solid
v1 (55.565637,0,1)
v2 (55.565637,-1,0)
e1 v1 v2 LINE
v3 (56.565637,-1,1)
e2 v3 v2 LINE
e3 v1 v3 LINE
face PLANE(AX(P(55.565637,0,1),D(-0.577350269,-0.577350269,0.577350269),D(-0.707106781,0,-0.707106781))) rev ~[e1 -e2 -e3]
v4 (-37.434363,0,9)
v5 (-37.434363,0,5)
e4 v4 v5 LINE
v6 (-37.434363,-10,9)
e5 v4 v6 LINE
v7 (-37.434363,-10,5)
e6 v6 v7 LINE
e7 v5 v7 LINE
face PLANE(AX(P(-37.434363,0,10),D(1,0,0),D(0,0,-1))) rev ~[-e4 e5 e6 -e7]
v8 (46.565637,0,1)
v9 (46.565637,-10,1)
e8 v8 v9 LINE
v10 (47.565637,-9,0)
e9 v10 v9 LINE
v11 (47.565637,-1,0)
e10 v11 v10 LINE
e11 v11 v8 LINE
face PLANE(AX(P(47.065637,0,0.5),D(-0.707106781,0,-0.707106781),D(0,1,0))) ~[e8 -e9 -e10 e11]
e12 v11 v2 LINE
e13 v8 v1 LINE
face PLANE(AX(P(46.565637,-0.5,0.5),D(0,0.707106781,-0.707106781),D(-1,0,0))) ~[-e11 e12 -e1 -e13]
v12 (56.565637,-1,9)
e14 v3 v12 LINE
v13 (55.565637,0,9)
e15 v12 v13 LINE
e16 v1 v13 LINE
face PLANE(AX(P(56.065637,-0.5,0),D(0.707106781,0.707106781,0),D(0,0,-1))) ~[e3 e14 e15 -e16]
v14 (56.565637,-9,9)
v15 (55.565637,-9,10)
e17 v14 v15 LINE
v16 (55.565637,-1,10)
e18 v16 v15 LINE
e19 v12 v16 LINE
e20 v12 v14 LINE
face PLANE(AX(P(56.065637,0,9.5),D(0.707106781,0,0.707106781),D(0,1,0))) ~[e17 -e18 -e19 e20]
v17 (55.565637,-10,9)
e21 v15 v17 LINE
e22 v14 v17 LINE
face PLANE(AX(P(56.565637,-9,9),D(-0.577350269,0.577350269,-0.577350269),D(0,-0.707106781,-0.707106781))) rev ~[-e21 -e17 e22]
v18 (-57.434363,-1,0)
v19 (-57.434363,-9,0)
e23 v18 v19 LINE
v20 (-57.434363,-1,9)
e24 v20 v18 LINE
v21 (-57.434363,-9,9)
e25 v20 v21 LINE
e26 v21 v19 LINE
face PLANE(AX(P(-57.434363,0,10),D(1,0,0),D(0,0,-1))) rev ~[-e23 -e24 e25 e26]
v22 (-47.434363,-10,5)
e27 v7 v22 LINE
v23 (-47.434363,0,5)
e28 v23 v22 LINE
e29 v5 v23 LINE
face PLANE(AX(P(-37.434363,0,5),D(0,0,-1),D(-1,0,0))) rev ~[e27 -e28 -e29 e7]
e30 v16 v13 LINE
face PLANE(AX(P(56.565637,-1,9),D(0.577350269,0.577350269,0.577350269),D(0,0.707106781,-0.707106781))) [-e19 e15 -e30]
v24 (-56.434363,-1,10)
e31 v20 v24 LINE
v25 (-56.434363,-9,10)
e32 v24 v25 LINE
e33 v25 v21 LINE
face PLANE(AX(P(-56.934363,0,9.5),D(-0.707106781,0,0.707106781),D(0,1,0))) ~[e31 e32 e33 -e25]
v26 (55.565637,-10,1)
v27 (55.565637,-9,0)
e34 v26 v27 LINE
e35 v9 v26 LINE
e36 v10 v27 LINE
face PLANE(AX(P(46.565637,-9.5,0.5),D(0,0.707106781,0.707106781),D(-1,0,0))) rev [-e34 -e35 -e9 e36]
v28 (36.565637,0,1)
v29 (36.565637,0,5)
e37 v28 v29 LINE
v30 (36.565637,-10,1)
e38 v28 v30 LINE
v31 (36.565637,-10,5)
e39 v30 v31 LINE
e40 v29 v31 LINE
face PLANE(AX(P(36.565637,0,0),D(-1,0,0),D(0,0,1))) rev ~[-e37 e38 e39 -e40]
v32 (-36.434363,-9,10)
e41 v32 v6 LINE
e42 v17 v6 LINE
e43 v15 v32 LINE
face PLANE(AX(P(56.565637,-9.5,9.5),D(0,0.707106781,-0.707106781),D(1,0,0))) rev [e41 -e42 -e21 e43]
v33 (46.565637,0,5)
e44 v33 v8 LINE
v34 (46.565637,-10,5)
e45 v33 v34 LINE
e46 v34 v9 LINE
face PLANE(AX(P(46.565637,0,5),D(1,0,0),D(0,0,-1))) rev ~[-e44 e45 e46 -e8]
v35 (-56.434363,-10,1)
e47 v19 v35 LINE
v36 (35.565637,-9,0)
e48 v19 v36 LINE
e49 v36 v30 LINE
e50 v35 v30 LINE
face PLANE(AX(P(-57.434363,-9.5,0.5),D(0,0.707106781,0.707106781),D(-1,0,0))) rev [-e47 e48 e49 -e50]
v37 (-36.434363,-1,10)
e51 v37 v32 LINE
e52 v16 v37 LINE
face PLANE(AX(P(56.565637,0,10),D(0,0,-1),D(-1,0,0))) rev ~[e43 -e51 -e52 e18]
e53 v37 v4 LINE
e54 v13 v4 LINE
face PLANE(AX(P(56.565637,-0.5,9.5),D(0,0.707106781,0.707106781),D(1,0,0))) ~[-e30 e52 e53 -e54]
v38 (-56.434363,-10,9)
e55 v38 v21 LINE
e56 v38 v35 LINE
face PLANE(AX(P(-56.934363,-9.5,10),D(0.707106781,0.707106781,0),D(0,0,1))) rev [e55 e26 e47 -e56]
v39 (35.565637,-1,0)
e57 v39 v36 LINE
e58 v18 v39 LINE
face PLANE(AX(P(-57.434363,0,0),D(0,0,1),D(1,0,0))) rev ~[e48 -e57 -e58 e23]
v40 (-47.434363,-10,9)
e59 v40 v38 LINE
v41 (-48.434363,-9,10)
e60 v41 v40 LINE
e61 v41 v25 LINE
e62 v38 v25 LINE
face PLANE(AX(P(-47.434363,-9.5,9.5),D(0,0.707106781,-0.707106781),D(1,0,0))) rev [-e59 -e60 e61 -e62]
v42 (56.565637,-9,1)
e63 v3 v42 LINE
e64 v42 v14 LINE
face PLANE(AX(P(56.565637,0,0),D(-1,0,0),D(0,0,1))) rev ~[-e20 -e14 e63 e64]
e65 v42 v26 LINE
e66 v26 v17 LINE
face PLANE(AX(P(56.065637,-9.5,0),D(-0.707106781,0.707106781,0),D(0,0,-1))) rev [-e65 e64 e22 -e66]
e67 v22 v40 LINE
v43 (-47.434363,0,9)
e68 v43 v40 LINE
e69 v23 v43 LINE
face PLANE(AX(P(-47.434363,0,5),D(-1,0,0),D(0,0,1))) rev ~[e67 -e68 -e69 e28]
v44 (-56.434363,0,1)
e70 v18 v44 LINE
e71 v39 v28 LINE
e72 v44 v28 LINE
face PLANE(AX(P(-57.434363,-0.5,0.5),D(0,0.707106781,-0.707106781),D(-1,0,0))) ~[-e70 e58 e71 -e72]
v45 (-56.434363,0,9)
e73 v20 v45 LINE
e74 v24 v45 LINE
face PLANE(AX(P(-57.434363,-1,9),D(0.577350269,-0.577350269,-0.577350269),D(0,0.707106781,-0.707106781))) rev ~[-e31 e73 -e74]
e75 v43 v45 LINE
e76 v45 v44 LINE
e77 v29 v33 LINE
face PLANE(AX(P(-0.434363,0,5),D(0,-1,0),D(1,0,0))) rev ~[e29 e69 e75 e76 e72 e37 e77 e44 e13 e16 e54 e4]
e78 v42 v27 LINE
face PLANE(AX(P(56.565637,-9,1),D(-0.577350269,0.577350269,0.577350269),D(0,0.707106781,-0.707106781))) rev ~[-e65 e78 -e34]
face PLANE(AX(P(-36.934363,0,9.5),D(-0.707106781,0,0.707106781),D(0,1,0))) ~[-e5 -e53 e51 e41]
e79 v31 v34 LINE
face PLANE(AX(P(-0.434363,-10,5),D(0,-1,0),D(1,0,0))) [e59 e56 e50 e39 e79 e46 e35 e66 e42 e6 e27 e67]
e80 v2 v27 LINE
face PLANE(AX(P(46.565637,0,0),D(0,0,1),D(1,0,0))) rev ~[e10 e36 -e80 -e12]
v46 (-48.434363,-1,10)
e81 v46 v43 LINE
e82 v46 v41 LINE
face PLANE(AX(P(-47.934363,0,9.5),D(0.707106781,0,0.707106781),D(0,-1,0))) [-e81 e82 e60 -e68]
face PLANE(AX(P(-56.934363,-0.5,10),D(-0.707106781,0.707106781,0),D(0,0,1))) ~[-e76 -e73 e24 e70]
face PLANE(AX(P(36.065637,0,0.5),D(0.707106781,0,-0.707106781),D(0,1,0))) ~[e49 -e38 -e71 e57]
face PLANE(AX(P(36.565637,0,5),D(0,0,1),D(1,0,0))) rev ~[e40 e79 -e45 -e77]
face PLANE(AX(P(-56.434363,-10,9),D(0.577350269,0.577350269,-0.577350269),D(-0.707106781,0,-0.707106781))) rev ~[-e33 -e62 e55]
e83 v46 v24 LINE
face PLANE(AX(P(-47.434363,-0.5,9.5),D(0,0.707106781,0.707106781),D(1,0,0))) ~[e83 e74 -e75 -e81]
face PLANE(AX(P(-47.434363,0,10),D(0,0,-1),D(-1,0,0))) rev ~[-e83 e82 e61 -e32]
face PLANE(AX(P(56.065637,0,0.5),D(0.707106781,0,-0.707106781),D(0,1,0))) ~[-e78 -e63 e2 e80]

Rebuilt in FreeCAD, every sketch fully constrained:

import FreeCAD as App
import Part
import Sketcher
from FreeCAD import Vector


def edges_at(feature, points):
    """Names of the edges that pass closest to the given points."""
    edges = feature.Shape.Edges
    near = lambda p: min(range(len(edges)), key=lambda i: edges[i].distToShape(Part.Vertex(*p))[0])
    return sorted({f"Edge{near(p) + 1}" for p in points})

doc = App.newDocument("Part")
params = doc.addObject("Spreadsheet::Sheet", "Params")
for row, (alias, value) in enumerate([
    ("sketch1_width", "10 mm"),
    ("sketch1_width2", "94 mm"),
    ("pad1_length", "10 mm"),
    ("chamfer_size", "1 mm"),
], start=1):
    params.set(f"A{row}", alias)
    params.set(f"B{row}", "=" + value)
    params.setAlias(f"B{row}", alias)

body = doc.addObject("PartDesign::Body", "Body")

# Sketch on XZ plane
sketch1 = body.newObject("Sketcher::SketchObject", "Sketch")
sketch1.AttachmentSupport = (doc.getObject("XZ_Plane"), [""])
sketch1.MapMode = "FlatFace"
sketch1.addGeometry([
    Part.LineSegment(Vector(-47, 10, 0), Vector(-57, 10, 0)),  # 0
    Part.LineSegment(Vector(-57, 10, 0), Vector(-57, 0, 0)),  # 1
    Part.LineSegment(Vector(-57, 0, 0), Vector(37, 0, 0)),  # 2
    Part.LineSegment(Vector(37, 0, 0), Vector(37, 5, 0)),  # 3
    Part.LineSegment(Vector(37, 5, 0), Vector(47, 5, 0)),  # 4
    Part.LineSegment(Vector(47, 5, 0), Vector(47, 0, 0)),  # 5
    Part.LineSegment(Vector(47, 0, 0), Vector(57, 0, 0)),  # 6
    Part.LineSegment(Vector(57, 0, 0), Vector(57, 10, 0)),  # 7
    Part.LineSegment(Vector(57, 10, 0), Vector(-37, 10, 0)),  # 8
    Part.LineSegment(Vector(-37, 10, 0), Vector(-37, 5, 0)),  # 9
    Part.LineSegment(Vector(-37, 5, 0), Vector(-47, 5, 0)),  # 10
    Part.LineSegment(Vector(-47, 5, 0), Vector(-47, 10, 0)),  # 11
], False)
sketch1.addConstraint([
    Sketcher.Constraint("Coincident", 0, 2, 1, 1),
    Sketcher.Constraint("Coincident", 1, 2, 2, 1),
    Sketcher.Constraint("Coincident", 2, 2, 3, 1),
    Sketcher.Constraint("Coincident", 3, 2, 4, 1),
    Sketcher.Constraint("Coincident", 4, 2, 5, 1),
    Sketcher.Constraint("Coincident", 5, 2, 6, 1),
    Sketcher.Constraint("Coincident", 6, 2, 7, 1),
    Sketcher.Constraint("Coincident", 7, 2, 8, 1),
    Sketcher.Constraint("Coincident", 8, 2, 9, 1),
    Sketcher.Constraint("Coincident", 9, 2, 10, 1),
    Sketcher.Constraint("Coincident", 10, 2, 11, 1),
    Sketcher.Constraint("Coincident", 11, 2, 0, 1),
    Sketcher.Constraint("Horizontal", 0),
    Sketcher.Constraint("Vertical", 1),
    Sketcher.Constraint("Horizontal", 2),
    Sketcher.Constraint("Vertical", 3),
    Sketcher.Constraint("Horizontal", 4),
    Sketcher.Constraint("Vertical", 5),
    Sketcher.Constraint("Horizontal", 6),
    Sketcher.Constraint("Vertical", 7),
    Sketcher.Constraint("Horizontal", 8),
    Sketcher.Constraint("Vertical", 9),
    Sketcher.Constraint("Horizontal", 10),
    Sketcher.Constraint("Vertical", 11),
    Sketcher.Constraint("PointOnObject", 1, 2, -1),
    Sketcher.Constraint("PointOnObject", 5, 2, -1),
    Sketcher.Constraint("Horizontal", 0, 2, 7, 2),
    Sketcher.Constraint("Horizontal", 4, 2, 9, 2),
    Sketcher.Constraint("Equal", 0, 4),
    Sketcher.Constraint("Equal", 4, 6),
    Sketcher.Constraint("Equal", 2, 8),
    Sketcher.Constraint("Equal", 10, 1),
    Sketcher.Constraint("Equal", 5, 9),
    Sketcher.Constraint("DistanceX", 0, 2, 0, 1, 10.0),
    Sketcher.Constraint("DistanceX", 2, 1, 2, 2, 94.0),
    Sketcher.Constraint("DistanceX", 0, 2, -1, 1, 57.434363),
])
sketch1.setExpression("Constraints[33]", "Params.sketch1_width")
sketch1.setExpression("Constraints[34]", "Params.sketch1_width2")
pad1 = body.newObject("PartDesign::Pad", "Pad")
pad1.Profile = sketch1
pad1.setExpression("Length", "Params.pad1_length")
doc.recompute()

chamfer = body.newObject("PartDesign::Chamfer", "Chamfer")
chamfer.Base = (pad1, edges_at(pad1, [
    (-52.434, 0, 10),
    (-57.434, -5, 10),
    (-52.434, -10, 10),
    (9.566, 0, 10),
    (9.566, -10, 10),
    (56.566, -5, 10),
    (-57.434, -10, 5),
    (-10.434, -10, 0),
    (51.566, -10, 0),
    (56.566, -10, 5),
    (56.566, -5, 0),
    (56.566, 0, 5),
    (51.566, 0, 0),
    (-10.434, 0, 0),
    (-57.434, 0, 5),
    (-47.434, -5, 10),
    (-37.434, -5, 10),
    (36.566, -5, 0),
    (46.566, -5, 0),
]))
chamfer.setExpression("Size", "Params.chamfer_size")

doc.recompute()
